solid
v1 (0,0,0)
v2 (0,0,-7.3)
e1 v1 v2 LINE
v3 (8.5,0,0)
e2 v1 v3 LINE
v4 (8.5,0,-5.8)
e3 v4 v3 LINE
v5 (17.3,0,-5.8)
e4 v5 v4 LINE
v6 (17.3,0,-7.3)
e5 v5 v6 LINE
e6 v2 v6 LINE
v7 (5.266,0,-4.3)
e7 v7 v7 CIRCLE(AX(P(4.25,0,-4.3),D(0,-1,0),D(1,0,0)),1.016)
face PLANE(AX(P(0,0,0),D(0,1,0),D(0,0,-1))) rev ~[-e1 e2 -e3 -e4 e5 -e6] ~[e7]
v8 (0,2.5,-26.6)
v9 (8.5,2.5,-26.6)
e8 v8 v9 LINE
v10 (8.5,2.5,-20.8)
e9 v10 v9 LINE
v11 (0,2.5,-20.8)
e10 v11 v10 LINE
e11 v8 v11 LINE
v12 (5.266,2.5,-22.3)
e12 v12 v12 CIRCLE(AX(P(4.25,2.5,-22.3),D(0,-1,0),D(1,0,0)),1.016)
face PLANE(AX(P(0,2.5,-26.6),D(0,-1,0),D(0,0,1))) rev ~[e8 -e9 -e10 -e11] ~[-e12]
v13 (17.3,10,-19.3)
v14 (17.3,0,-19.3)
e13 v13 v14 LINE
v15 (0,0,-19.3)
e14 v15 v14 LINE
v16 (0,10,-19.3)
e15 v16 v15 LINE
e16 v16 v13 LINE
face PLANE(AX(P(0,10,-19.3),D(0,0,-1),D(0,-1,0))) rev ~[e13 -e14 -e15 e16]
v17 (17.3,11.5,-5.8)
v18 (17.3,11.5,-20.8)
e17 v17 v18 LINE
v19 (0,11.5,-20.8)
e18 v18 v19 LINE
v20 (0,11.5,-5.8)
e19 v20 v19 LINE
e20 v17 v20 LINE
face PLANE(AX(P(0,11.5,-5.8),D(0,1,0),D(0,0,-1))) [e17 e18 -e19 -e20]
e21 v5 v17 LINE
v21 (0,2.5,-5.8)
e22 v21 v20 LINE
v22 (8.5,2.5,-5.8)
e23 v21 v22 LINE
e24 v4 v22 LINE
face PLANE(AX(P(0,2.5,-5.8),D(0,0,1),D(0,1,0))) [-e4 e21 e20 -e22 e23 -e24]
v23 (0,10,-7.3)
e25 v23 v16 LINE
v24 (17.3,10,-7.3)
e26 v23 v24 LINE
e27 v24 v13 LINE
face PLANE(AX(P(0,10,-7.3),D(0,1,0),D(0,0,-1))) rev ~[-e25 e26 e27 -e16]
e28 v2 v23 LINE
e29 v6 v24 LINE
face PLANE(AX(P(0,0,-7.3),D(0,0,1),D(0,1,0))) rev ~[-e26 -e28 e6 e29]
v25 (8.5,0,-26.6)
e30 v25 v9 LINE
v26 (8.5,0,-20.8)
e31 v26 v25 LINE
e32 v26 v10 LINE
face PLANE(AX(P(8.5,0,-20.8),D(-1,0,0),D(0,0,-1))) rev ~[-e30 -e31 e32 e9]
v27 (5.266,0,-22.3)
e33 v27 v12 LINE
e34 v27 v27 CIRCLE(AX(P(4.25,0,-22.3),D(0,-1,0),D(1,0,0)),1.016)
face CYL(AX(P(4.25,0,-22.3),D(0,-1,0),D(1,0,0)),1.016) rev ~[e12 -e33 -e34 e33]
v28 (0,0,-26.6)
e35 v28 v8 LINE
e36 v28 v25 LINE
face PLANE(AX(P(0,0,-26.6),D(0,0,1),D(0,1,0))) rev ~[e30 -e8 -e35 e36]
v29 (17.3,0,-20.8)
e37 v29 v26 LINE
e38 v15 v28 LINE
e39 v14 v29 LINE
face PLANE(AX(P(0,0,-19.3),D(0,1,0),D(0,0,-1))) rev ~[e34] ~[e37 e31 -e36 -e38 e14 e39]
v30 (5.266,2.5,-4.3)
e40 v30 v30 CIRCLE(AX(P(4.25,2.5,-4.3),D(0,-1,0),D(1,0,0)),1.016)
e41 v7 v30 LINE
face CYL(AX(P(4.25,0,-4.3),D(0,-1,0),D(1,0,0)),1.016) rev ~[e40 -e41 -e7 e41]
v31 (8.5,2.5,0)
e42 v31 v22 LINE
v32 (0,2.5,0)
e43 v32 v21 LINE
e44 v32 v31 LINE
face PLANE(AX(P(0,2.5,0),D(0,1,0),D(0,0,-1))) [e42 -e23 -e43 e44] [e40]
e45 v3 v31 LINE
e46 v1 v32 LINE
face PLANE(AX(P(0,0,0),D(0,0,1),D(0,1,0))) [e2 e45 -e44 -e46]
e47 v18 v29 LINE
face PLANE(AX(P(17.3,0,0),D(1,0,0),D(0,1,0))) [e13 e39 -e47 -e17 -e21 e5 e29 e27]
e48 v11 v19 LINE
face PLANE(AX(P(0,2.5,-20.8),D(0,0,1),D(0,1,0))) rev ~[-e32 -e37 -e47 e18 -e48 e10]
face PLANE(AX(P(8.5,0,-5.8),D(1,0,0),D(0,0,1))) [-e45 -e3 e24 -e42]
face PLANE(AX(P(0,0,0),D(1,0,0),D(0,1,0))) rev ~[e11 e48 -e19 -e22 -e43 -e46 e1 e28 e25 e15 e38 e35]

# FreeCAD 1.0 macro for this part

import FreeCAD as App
import Part
import Sketcher
from FreeCAD import Vector

doc = App.newDocument("Part")
body = doc.addObject("PartDesign::Body", "Body")

sketch1 = body.newObject("Sketcher::SketchObject", "Sketch")
sketch1.AttachmentSupport = (doc.getObject("YZ_Plane"), [""])
sketch1.MapMode = "FlatFace"
sketch1.addGeometry(Part.LineSegment(Vector(2.5, 0, 0), Vector(0, 0, 0)), False)
sketch1.addGeometry(Part.LineSegment(Vector(0, 0, 0), Vector(0, -7.3, 0)), False)
sketch1.addGeometry(Part.LineSegment(Vector(0, -7.3, 0), Vector(10, -7.3, 0)), False)
sketch1.addGeometry(Part.LineSegment(Vector(10, -7.3, 0), Vector(10, -19.3, 0)), False)
sketch1.addGeometry(Part.LineSegment(Vector(10, -19.3, 0), Vector(0, -19.3, 0)), False)
sketch1.addGeometry(Part.LineSegment(Vector(0, -19.3, 0), Vector(0, -26.6, 0)), False)
sketch1.addGeometry(Part.LineSegment(Vector(0, -26.6, 0), Vector(2.5, -26.6, 0)), False)
sketch1.addGeometry(Part.LineSegment(Vector(2.5, -26.6, 0), Vector(2.5, -20.8, 0)), False)
sketch1.addGeometry(Part.LineSegment(Vector(2.5, -20.8, 0), Vector(11.5, -20.8, 0)), False)
sketch1.addGeometry(Part.LineSegment(Vector(11.5, -20.8, 0), Vector(11.5, -5.8, 0)), False)
sketch1.addGeometry(Part.LineSegment(Vector(11.5, -5.8, 0), Vector(2.5, -5.8, 0)), False)
sketch1.addGeometry(Part.LineSegment(Vector(2.5, -5.8, 0), Vector(2.5, 0, 0)), False)
sketch1.addConstraint(Sketcher.Constraint("Coincident", 0, 2, 1, 1))
sketch1.addConstraint(Sketcher.Constraint("Coincident", 1, 2, 2, 1))
sketch1.addConstraint(Sketcher.Constraint("Coincident", 2, 2, 3, 1))
sketch1.addConstraint(Sketcher.Constraint("Coincident", 3, 2, 4, 1))
sketch1.addConstraint(Sketcher.Constraint("Coincident", 4, 2, 5, 1))
sketch1.addConstraint(Sketcher.Constraint("Coincident", 5, 2, 6, 1))
sketch1.addConstraint(Sketcher.Constraint("Coincident", 6, 2, 7, 1))
sketch1.addConstraint(Sketcher.Constraint("Coincident", 7, 2, 8, 1))
sketch1.addConstraint(Sketcher.Constraint("Coincident", 8, 2, 9, 1))
sketch1.addConstraint(Sketcher.Constraint("Coincident", 9, 2, 10, 1))
sketch1.addConstraint(Sketcher.Constraint("Coincident", 10, 2, 11, 1))
sketch1.addConstraint(Sketcher.Constraint("Coincident", 11, 2, 0, 1))
sketch1.addConstraint(Sketcher.Constraint("Horizontal", 0))
sketch1.addConstraint(Sketcher.Constraint("Vertical", 1))
sketch1.addConstraint(Sketcher.Constraint("Horizontal", 2))
sketch1.addConstraint(Sketcher.Constraint("Vertical", 3))
sketch1.addConstraint(Sketcher.Constraint("Horizontal", 4))
sketch1.addConstraint(Sketcher.Constraint("Vertical", 5))
sketch1.addConstraint(Sketcher.Constraint("Horizontal", 6))
sketch1.addConstraint(Sketcher.Constraint("Vertical", 7))
sketch1.addConstraint(Sketcher.Constraint("Horizontal", 8))
sketch1.addConstraint(Sketcher.Constraint("Vertical", 9))
sketch1.addConstraint(Sketcher.Constraint("Horizontal", 10))
sketch1.addConstraint(Sketcher.Constraint("Vertical", 11))
sketch1.addConstraint(Sketcher.Constraint("Coincident", 0, 2, -1, 1))
sketch1.addConstraint(Sketcher.Constraint("PointOnObject", 4, 2, -2))
sketch1.addConstraint(Sketcher.Constraint("Vertical", 7, 2, 10, 2))
sketch1.addConstraint(Sketcher.Constraint("Equal", 1, 5))
sketch1.addConstraint(Sketcher.Constraint("Equal", 7, 11))
sketch1.addConstraint(Sketcher.Constraint("DistanceX", 0, 2, 0, 1, 2.5))
sketch1.addConstraint(Sketcher.Constraint("DistanceY", 7, 1, 7, 2, 5.8))
sketch1.addConstraint(Sketcher.Constraint("DistanceY", 5, 2, -1, 1, 26.6))
sketch1.addConstraint(Sketcher.Constraint("DistanceX", -1, 1, 8, 2, 11.5))
sketch1.addConstraint(Sketcher.Constraint("DistanceY", 7, 2, 4, 2, 1.5))
sketch1.addConstraint(Sketcher.Constraint("DistanceX", 3, 2, 8, 2, 1.5))
pad1 = body.newObject("PartDesign::Pad", "Pad")
pad1.Profile = sketch1
pad1.Length = 17.3

sketch2 = body.newObject("Sketcher::SketchObject", "Sketch001")
sketch2.AttachmentSupport = (doc.getObject("XZ_Plane"), [""])
sketch2.MapMode = "FlatFace"
sketch2.addGeometry(Part.LineSegment(Vector(8, -21, 0), Vector(8, -27, 0)), False)
sketch2.addGeometry(Part.LineSegment(Vector(8, -27, 0), Vector(17, -27, 0)), False)
sketch2.addGeometry(Part.LineSegment(Vector(17, -27, 0), Vector(17, -21, 0)), False)
sketch2.addGeometry(Part.LineSegment(Vector(17, -21, 0), Vector(8, -21, 0)), False)
sketch2.addGeometry(Part.LineSegment(Vector(17, 0, 0), Vector(8, 0, 0)), False)
sketch2.addGeometry(Part.LineSegment(Vector(8, 0, 0), Vector(8, -6, 0)), False)
sketch2.addGeometry(Part.LineSegment(Vector(8, -6, 0), Vector(17, -6, 0)), False)
sketch2.addGeometry(Part.LineSegment(Vector(17, -6, 0), Vector(17, 0, 0)), False)
sketch2.addConstraint(Sketcher.Constraint("Coincident", 0, 2, 1, 1))
sketch2.addConstraint(Sketcher.Constraint("Coincident", 1, 2, 2, 1))
sketch2.addConstraint(Sketcher.Constraint("Coincident", 2, 2, 3, 1))
sketch2.addConstraint(Sketcher.Constraint("Coincident", 3, 2, 0, 1))
sketch2.addConstraint(Sketcher.Constraint("Coincident", 4, 2, 5, 1))
sketch2.addConstraint(Sketcher.Constraint("Coincident", 5, 2, 6, 1))
sketch2.addConstraint(Sketcher.Constraint("Coincident", 6, 2, 7, 1))
sketch2.addConstraint(Sketcher.Constraint("Coincident", 7, 2, 4, 1))
sketch2.addConstraint(Sketcher.Constraint("Vertical", 0))
sketch2.addConstraint(Sketcher.Constraint("Horizontal", 1))
sketch2.addConstraint(Sketcher.Constraint("Vertical", 2))
sketch2.addConstraint(Sketcher.Constraint("Horizontal", 3))
sketch2.addConstraint(Sketcher.Constraint("Horizontal", 4))
sketch2.addConstraint(Sketcher.Constraint("Vertical", 5))
sketch2.addConstraint(Sketcher.Constraint("Horizontal", 6))
sketch2.addConstraint(Sketcher.Constraint("Vertical", 7))
sketch2.addConstraint(Sketcher.Constraint("PointOnObject", 4, 2, -1))
sketch2.addConstraint(Sketcher.Constraint("Vertical", 3, 2, 4, 2))
sketch2.addConstraint(Sketcher.Constraint("Vertical", 2, 2, 6, 2))
sketch2.addConstraint(Sketcher.Constraint("Equal", 2, 5))
sketch2.addConstraint(Sketcher.Constraint("DistanceY", 0, 2, 0, 1, 5.8))
sketch2.addConstraint(Sketcher.Constraint("DistanceX", -1, 1, 0, 2, 8.5))
sketch2.addConstraint(Sketcher.Constraint("DistanceX", 1, 1, 1, 2, 8.8))
sketch2.addConstraint(Sketcher.Constraint("DistanceY", 3, 2, 5, 2, 15.0))
pocket1 = body.newObject("PartDesign::Pocket", "Pocket")
pocket1.Profile = sketch2
pocket1.Type = "ThroughAll"

sketch3 = body.newObject("Sketcher::SketchObject", "Sketch002")
sketch3.AttachmentSupport = (doc.getObject("XZ_Plane"), [""])
sketch3.MapMode = "FlatFace"
sketch3.addGeometry(Part.Circle(Vector(4.2, -4.3, 0), Vector(0, 0, 1), 1), False)
sketch3.addGeometry(Part.Circle(Vector(4.2, -22.3, 0), Vector(0, 0, 1), 1), False)
sketch3.addConstraint(Sketcher.Constraint("Equal", 0, 1))
sketch3.addConstraint(Sketcher.Constraint("Vertical", 0, 3, 1, 3))
sketch3.addConstraint(Sketcher.Constraint("Diameter", 0, 2.032))
sketch3.addConstraint(Sketcher.Constraint("DistanceY", 1, 3, 0, 3, 18.0))
sketch3.addConstraint(Sketcher.Constraint("DistanceX", -1, 1, 0, 3, 4.25))
sketch3.addConstraint(Sketcher.Constraint("DistanceY", 0, 3, -1, 1, 4.3))
pocket2 = body.newObject("PartDesign::Pocket", "Pocket001")
pocket2.Profile = sketch3
pocket2.Type = "ThroughAll"

doc.recompute()
